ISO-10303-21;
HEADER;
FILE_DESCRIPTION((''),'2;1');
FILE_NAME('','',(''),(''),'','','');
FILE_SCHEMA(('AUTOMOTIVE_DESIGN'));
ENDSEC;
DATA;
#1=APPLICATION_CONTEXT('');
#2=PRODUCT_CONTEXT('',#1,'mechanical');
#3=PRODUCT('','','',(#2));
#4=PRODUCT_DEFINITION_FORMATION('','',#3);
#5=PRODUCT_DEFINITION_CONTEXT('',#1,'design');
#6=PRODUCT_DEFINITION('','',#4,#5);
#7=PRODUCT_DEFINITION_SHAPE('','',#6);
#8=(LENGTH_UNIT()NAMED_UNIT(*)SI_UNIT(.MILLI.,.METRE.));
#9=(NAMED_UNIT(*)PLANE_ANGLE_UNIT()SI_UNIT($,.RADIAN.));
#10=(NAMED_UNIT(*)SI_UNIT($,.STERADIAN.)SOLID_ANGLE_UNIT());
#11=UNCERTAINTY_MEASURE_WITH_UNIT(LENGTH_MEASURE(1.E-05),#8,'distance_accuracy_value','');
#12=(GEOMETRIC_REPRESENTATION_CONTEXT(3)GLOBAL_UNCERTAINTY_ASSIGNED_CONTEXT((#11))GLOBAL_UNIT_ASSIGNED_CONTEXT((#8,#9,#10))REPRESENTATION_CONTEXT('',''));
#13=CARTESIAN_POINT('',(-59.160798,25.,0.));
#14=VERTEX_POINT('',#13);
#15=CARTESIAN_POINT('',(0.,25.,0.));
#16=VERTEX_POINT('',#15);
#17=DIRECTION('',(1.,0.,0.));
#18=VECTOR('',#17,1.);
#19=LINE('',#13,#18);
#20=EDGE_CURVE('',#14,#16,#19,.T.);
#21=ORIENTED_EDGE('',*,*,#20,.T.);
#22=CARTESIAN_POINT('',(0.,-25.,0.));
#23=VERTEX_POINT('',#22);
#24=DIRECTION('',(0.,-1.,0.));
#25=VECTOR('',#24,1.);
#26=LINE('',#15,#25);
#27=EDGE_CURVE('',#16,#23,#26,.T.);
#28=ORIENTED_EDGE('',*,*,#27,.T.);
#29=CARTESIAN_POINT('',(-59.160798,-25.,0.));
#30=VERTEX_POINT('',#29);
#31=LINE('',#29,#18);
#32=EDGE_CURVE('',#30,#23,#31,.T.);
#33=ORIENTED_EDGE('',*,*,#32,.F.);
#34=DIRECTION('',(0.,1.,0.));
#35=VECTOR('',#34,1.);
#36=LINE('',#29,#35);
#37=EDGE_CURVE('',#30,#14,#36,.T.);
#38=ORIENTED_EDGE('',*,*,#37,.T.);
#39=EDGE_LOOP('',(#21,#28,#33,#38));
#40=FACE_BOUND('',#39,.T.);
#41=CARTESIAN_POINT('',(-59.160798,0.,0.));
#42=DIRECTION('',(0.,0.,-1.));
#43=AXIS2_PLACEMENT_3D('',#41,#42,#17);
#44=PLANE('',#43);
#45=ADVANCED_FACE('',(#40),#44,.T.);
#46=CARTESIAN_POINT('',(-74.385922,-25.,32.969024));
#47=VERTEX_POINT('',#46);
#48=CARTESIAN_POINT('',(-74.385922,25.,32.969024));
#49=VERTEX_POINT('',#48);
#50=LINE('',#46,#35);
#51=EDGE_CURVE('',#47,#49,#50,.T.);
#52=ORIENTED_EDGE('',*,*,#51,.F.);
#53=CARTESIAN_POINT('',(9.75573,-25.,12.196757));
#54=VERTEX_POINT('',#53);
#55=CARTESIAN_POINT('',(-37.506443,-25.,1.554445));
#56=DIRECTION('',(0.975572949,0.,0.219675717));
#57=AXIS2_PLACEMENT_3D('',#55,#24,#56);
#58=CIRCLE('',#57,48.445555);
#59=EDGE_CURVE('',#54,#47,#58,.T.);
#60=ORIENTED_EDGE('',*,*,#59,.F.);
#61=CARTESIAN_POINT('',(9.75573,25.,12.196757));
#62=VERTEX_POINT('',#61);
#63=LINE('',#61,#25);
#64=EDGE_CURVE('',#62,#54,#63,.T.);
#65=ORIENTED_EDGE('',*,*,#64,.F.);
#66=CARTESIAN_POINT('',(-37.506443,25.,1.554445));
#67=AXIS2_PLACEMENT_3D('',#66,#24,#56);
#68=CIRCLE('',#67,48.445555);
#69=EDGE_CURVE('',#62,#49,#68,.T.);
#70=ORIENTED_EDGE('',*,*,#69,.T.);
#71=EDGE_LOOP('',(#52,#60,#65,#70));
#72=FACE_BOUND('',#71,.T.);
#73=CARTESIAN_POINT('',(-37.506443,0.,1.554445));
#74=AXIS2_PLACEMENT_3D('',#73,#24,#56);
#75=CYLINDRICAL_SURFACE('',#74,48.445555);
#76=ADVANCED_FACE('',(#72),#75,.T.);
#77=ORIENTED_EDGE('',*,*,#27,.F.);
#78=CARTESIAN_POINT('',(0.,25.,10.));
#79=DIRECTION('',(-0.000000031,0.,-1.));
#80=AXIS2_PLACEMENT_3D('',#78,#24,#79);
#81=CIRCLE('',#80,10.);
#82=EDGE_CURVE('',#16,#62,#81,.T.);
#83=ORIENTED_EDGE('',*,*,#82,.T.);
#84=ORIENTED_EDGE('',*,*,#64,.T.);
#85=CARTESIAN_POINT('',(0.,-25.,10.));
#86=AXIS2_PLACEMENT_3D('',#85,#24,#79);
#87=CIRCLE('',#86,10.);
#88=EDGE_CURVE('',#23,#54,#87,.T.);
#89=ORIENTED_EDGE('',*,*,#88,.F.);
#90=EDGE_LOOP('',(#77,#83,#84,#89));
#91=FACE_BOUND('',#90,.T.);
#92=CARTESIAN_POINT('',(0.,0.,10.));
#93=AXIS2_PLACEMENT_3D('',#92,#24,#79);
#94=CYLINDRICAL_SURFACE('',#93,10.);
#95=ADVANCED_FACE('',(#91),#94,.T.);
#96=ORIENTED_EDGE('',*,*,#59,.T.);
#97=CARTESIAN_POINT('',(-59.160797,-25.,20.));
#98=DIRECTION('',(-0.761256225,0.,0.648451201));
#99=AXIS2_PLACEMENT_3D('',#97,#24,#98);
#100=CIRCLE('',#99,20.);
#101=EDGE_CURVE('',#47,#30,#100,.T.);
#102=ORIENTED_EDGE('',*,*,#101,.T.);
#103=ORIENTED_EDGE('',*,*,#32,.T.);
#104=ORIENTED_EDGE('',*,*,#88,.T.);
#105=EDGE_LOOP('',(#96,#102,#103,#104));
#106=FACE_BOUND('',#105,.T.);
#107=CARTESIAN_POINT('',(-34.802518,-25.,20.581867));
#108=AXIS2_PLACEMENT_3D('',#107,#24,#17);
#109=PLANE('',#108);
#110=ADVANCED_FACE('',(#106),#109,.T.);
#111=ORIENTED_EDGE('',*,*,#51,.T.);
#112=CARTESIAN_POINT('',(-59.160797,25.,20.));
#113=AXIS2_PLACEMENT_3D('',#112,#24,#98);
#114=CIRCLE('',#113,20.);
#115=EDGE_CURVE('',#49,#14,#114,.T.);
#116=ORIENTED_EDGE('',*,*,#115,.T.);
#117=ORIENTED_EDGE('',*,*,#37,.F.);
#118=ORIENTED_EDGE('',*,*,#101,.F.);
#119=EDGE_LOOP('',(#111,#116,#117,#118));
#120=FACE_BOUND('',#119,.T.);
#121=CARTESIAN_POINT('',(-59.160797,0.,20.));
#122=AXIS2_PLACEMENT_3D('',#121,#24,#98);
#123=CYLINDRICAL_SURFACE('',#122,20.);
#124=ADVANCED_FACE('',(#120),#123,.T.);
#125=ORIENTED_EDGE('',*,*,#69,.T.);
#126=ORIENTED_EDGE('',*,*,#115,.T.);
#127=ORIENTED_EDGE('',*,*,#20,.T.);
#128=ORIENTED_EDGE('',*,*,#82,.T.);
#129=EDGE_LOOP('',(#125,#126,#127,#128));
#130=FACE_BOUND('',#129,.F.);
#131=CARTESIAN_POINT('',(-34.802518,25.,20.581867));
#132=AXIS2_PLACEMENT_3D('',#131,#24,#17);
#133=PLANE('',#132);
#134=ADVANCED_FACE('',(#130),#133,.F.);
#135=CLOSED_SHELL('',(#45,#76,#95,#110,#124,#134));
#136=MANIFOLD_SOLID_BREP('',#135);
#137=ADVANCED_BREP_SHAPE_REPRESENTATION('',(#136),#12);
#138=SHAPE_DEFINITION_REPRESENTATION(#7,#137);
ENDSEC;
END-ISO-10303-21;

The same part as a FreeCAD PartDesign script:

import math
import FreeCAD as App
import Part
import Sketcher

doc = App.newDocument("Part")
body = doc.addObject("PartDesign::Body", "Body")

# Sketch on XZ plane
sketch1 = body.newObject("Sketcher::SketchObject", "Sketch")
sketch1.AttachmentSupport = (doc.getObject("XZ_Plane"), [""])
sketch1.MapMode = "FlatFace"
sketch1.addGeometry(Part.LineSegment(App.Vector(-59.160798, 0, 0), App.Vector(0, 0, 0)), False)
sketch1.addGeometry(Part.ArcOfCircle(Part.Circle(App.Vector(0, 10, 0), App.Vector(0, 0, 1), 10), math.radians(-90.000002), math.radians(12.689985)), False)
sketch1.addGeometry(Part.ArcOfCircle(Part.Circle(App.Vector(-37.506443, 1.554445, 0), App.Vector(0, 0, 1), 48.445555), math.radians(12.689987), math.radians(139.575068)), False)
sketch1.addGeometry(Part.ArcOfCircle(Part.Circle(App.Vector(-59.160797, 20, 0), App.Vector(0, 0, 1), 20), math.radians(139.575069), math.radians(269.999999)), False)
sketch1.addConstraint(Sketcher.Constraint("Tangent", 0, 2, 1, 1))
sketch1.addConstraint(Sketcher.Constraint("Tangent", 1, 2, 2, 1))
sketch1.addConstraint(Sketcher.Constraint("Tangent", 2, 2, 3, 1))
sketch1.addConstraint(Sketcher.Constraint("Tangent", 3, 2, 0, 1))
sketch1.addConstraint(Sketcher.Constraint("Horizontal", 0))
sketch1.addConstraint(Sketcher.Constraint("Coincident", 0, 2, -1, 1))
sketch1.addConstraint(Sketcher.Constraint("Radius", 1, 10.0))
sketch1.addConstraint(Sketcher.Constraint("Radius", 3, 20.0))
sketch1.addConstraint(Sketcher.Constraint("Radius", 2, 48.445555))
sketch1.addConstraint(Sketcher.Constraint("DistanceX", 3, 2, 1, 3, 59.160798))
pad1 = body.newObject("PartDesign::Pad", "Pad")
pad1.Profile = sketch1
pad1.Length = 50
pad1.Midplane = True

doc.recompute()
